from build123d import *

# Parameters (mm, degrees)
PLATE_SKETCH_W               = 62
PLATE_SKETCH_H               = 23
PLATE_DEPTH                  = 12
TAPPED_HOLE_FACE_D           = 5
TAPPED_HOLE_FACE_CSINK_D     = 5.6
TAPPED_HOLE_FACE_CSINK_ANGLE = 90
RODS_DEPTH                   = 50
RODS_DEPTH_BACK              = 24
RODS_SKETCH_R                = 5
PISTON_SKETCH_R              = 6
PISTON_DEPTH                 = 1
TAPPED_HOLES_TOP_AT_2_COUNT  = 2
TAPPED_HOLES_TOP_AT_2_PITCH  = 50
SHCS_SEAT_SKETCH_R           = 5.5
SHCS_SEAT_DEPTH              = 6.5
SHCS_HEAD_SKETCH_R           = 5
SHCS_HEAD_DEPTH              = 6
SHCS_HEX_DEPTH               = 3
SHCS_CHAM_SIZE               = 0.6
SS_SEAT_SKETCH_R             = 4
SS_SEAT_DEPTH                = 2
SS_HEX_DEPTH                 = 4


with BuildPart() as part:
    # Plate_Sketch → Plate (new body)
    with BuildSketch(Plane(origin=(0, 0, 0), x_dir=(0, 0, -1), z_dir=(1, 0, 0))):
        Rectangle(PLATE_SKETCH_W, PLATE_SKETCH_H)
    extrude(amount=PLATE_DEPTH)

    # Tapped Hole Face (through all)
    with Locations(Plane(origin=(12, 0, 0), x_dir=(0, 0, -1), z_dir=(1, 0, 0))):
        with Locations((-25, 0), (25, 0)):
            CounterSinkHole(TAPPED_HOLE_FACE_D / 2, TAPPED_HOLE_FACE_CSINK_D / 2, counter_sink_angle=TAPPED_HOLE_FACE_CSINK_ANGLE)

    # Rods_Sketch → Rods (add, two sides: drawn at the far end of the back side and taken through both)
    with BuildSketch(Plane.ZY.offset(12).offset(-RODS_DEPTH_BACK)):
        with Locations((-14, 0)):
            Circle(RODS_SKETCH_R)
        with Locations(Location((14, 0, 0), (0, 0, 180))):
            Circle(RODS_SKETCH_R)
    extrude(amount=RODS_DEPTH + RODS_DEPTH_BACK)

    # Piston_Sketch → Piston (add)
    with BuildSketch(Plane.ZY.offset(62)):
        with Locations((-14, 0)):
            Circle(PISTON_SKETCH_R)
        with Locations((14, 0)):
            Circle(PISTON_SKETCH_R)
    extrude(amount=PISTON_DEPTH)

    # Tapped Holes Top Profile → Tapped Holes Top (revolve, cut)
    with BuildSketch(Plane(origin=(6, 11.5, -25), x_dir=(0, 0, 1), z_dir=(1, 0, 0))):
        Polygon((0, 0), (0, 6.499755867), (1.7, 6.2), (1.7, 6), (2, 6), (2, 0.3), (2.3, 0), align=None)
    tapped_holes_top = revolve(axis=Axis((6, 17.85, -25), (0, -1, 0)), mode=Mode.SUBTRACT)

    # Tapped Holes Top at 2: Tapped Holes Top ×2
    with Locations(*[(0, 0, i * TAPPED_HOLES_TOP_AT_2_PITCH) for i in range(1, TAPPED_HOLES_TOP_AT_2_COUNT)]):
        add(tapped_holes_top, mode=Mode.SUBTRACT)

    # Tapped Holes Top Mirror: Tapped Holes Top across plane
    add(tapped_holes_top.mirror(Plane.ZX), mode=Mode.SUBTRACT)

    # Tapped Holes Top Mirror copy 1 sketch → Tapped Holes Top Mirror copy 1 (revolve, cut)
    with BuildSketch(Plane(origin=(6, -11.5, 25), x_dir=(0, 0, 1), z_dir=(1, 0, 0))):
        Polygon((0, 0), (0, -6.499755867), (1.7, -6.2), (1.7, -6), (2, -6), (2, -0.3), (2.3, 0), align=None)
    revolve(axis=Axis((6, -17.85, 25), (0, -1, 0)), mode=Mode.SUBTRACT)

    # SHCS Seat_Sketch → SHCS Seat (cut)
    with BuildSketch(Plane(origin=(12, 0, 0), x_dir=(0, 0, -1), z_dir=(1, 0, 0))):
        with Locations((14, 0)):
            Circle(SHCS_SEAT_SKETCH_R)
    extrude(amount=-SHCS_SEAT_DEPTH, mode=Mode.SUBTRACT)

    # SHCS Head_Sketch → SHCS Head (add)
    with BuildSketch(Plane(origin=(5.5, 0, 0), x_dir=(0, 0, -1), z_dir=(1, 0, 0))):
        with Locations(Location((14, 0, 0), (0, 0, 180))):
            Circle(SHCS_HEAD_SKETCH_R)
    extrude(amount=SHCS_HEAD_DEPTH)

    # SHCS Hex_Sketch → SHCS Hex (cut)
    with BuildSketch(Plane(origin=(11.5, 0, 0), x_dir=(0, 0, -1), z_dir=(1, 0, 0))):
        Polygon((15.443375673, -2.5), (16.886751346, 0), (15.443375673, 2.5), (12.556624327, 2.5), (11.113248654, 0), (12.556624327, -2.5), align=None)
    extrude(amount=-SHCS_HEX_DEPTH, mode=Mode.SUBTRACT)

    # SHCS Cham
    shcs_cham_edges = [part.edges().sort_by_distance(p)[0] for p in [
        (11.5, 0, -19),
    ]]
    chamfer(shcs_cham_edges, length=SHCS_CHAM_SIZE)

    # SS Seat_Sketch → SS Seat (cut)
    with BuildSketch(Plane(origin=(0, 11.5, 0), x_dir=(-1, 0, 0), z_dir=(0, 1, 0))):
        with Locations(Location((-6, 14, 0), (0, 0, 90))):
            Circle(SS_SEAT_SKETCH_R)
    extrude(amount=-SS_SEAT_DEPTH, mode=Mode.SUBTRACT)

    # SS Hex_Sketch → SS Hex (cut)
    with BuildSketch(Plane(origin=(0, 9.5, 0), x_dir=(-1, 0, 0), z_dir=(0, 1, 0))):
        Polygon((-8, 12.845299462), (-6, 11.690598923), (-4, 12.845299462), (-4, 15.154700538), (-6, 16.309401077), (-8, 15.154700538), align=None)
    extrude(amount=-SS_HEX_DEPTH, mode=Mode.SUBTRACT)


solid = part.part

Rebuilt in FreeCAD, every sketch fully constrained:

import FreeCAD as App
import Part
import Sketcher

V = App.Vector
Q = App.Units.Quantity


def edges_at(feature, points):
    """Names of the edges that pass closest to the given points."""
    edges = feature.Shape.Edges
    near = lambda p: min(range(len(edges)), key=lambda i: edges[i].distToShape(Part.Vertex(*p))[0])
    return sorted({f"Edge{near(p) + 1}" for p in points})


def add_polygon(sketch, points):
    """Adds a closed chain of lines whose ends are joined by coincident constraints."""
    first, n = sketch.GeometryCount, len(points)
    for a, b in zip(points, points[1:] + points[:1]):
        sketch.addGeometry(Part.LineSegment(App.Vector(*a, 0), App.Vector(*b, 0)), False)
    for i in range(n):
        sketch.addConstraint(Sketcher.Constraint("Coincident", first + i, 2, first + (i + 1) % n, 1))

doc = App.newDocument("Part")
body = doc.addObject("PartDesign::Body", "Body")

# Sketch on YZ plane
sketch1 = doc.addObject("Sketcher::SketchObject", "Sketch")
body.addObject(sketch1)
sketch1.AttachmentSupport = (doc.YZ_Plane, [""])
sketch1.MapMode = "FlatFace"
add_polygon(sketch1, [(11.5, 31), (-11.5, 31), (-11.5, -31), (11.5, -31)])  # lines 0-3
sketch1.addConstraint([
    Sketcher.Constraint("Horizontal", 0),
    Sketcher.Constraint("Vertical", 1),
    Sketcher.Constraint("Horizontal", 2),
    Sketcher.Constraint("Vertical", 3),
    Sketcher.Constraint("Symmetric", 0, 2, 2, 2, -1, 1),
    Sketcher.Constraint("DistanceX", 0, 2, 0, 1, Q("23 mm")),
    Sketcher.Constraint("DistanceY", 1, 2, 1, 1, Q("62 mm")),
])
pad1 = doc.addObject("PartDesign::Pad", "Pad")
body.addObject(pad1)
pad1.Profile = sketch1
pad1.Length = 12

# Sketch on YZ plane
sketch2 = doc.addObject("Sketcher::SketchObject", "Sketch001")
body.addObject(sketch2)
sketch2.AttachmentSupport = (doc.YZ_Plane, [""])
sketch2.MapMode = "FlatFace"
sketch2.AttachmentOffset = App.Placement(V(0, 0, 12), App.Rotation())
sketch2.addGeometry([
    Part.Circle(V(0, 25, 0), V(0, 0, 1), 2.5),
    Part.Circle(V(0, -25, 0), V(0, 0, 1), 2.5),
], False)
sketch2.addConstraint([
    Sketcher.Constraint("Equal", 0, 1),
    Sketcher.Constraint("Symmetric", 0, 3, 1, 3, -1, 1),
    Sketcher.Constraint("PointOnObject", 0, 3, -2),
    Sketcher.Constraint("Diameter", 0, Q("5 mm")),
    Sketcher.Constraint("DistanceY", -1, 1, 0, 3, Q("25 mm")),
])
doc.recompute()
hole = doc.addObject("PartDesign::Hole", "Hole")
body.addObject(hole)
hole.Profile = sketch2
hole.ThreadType = "None"
hole.Diameter = 5
hole.DepthType = "ThroughAll"
hole.HoleCutType = "Countersink"
hole.HoleCutDiameter = 5.6
hole.HoleCutCountersinkAngle = 90

# Sketch on YZ plane
sketch3 = doc.addObject("Sketcher::SketchObject", "Sketch002")
body.addObject(sketch3)
sketch3.AttachmentSupport = (doc.YZ_Plane, [""])
sketch3.MapMode = "FlatFace"
sketch3.AttachmentOffset = App.Placement(V(0, 0, -12), App.Rotation())
sketch3.addGeometry([
    Part.Circle(V(0, -14, 0), V(0, 0, 1), 5),
    Part.Circle(V(0, 14, 0), V(0, 0, 1), 5),
], False)
sketch3.addConstraint([
    Sketcher.Constraint("Equal", 0, 1),
    Sketcher.Constraint("Symmetric", 0, 3, 1, 3, -1, 1),
    Sketcher.Constraint("PointOnObject", 0, 3, -2),
    Sketcher.Constraint("Diameter", 0, Q("10 mm")),
    Sketcher.Constraint("DistanceY", 0, 3, -1, 1, Q("14 mm")),
])
pad2 = doc.addObject("PartDesign::Pad", "Pad001")
body.addObject(pad2)
pad2.Profile = sketch3
pad2.Type = "TwoLengths"
pad2.Length = 50
pad2.Length2 = 24
pad2.Reversed = True

# Sketch on YZ plane
sketch4 = doc.addObject("Sketcher::SketchObject", "Sketch003")
body.addObject(sketch4)
sketch4.AttachmentSupport = (doc.YZ_Plane, [""])
sketch4.MapMode = "FlatFace"
sketch4.AttachmentOffset = App.Placement(V(0, 0, -62), App.Rotation())
sketch4.addGeometry([
    Part.Circle(V(0, -14, 0), V(0, 0, 1), 6),
    Part.Circle(V(0, 14, 0), V(0, 0, 1), 6),
], False)
sketch4.addConstraint([
    Sketcher.Constraint("Equal", 0, 1),
    Sketcher.Constraint("Symmetric", 0, 3, 1, 3, -1, 1),
    Sketcher.Constraint("PointOnObject", 0, 3, -2),
    Sketcher.Constraint("Diameter", 0, Q("12 mm")),
    Sketcher.Constraint("DistanceY", 0, 3, -1, 1, Q("14 mm")),
])
pad3 = doc.addObject("PartDesign::Pad", "Pad002")
body.addObject(pad3)
pad3.Profile = sketch4
pad3.Length = 1
pad3.Reversed = True

# Sketch on YZ plane
sketch5 = doc.addObject("Sketcher::SketchObject", "Sketch004")
body.addObject(sketch5)
sketch5.AttachmentSupport = (doc.YZ_Plane, [""])
sketch5.MapMode = "FlatFace"
sketch5.AttachmentOffset = App.Placement(V(0, 0, 6), App.Rotation())
add_polygon(sketch5, [(5.000244, -25), (11.5, -25), (11.5, -22.7), (11.2, -23), (5.5, -23), (5.5, -23.3), (5.3, -23.3)])  # lines 0-6
sketch5.addGeometry(Part.LineSegment(V(11.5, -25, 0), V(5.000244, -25, 0)), True)  # axis
sketch5.addConstraint([
    Sketcher.Constraint("Horizontal", 0),
    Sketcher.Constraint("Vertical", 1),
    Sketcher.Constraint("Horizontal", 3),
    Sketcher.Constraint("Vertical", 4),
    Sketcher.Constraint("Horizontal", 5),
    Sketcher.Constraint("Horizontal", 7),
    Sketcher.Constraint("Coincident", 7, 1, 0, 2),
    Sketcher.Constraint("Equal", 0, 7),
    Sketcher.Constraint("Angle", 2, Q("-135 deg")),
    Sketcher.Constraint("Angle", 6, Q("-100 deg")),
    Sketcher.Constraint("DistanceX", 3, 2, 3, 1, Q("5.7 mm")),
    Sketcher.Constraint("DistanceX", 5, 2, 5, 1, Q("0.2 mm")),
    Sketcher.Constraint("DistanceY", 1, 1, 1, 2, Q("2.3 mm")),
    Sketcher.Constraint("DistanceY", 4, 2, 4, 1, Q("0.3 mm")),
    Sketcher.Constraint("DistanceY", 0, 2, -1, 1, Q("25 mm")),
    Sketcher.Constraint("DistanceY", 2, 2, -1, 1, Q("23 mm")),
    Sketcher.Constraint("DistanceX", -1, 1, 0, 2, Q("11.5 mm")),
])
groove = doc.addObject("PartDesign::Groove", "Groove")
body.addObject(groove)
groove.Profile = sketch5
groove.ReferenceAxis = (sketch5, ["Axis0"])
groove.Angle = 360
doc.recompute()

linearpattern = doc.addObject("PartDesign::LinearPattern", "LinearPattern")
body.addObject(linearpattern)
linearpattern.Originals = [groove]
linearpattern.Direction = (doc.Z_Axis, [""])
linearpattern.Mode = "offset"
linearpattern.Offset = 50
linearpattern.Occurrences = 2
body.Tip = linearpattern
doc.recompute()

mirrored = doc.addObject("PartDesign::Mirrored", "Mirrored")
body.addObject(mirrored)
mirrored.Originals = [groove]
mirrored.MirrorPlane = (doc.XZ_Plane, [""])
body.Tip = mirrored

# Sketch on YZ plane
sketch6 = doc.addObject("Sketcher::SketchObject", "Sketch005")
body.addObject(sketch6)
sketch6.AttachmentSupport = (doc.YZ_Plane, [""])
sketch6.MapMode = "FlatFace"
sketch6.AttachmentOffset = App.Placement(V(0, 0, 6), App.Rotation())
add_polygon(sketch6, [(-11.5, 25), (-5.000244, 25), (-5.3, 26.7), (-5.5, 26.7), (-5.5, 27), (-11.2, 27), (-11.5, 27.3)])  # lines 0-6
sketch6.addGeometry(Part.LineSegment(V(-5.000244, 25, 0), V(-11.5, 25, 0)), True)  # axis
sketch6.addConstraint([
    Sketcher.Constraint("Horizontal", 0),
    Sketcher.Constraint("Horizontal", 2),
    Sketcher.Constraint("Vertical", 3),
    Sketcher.Constraint("Horizontal", 4),
    Sketcher.Constraint("Vertical", 6),
    Sketcher.Constraint("Horizontal", 7),
    Sketcher.Constraint("Coincident", 7, 1, 0, 2),
    Sketcher.Constraint("Vertical", 5, 2, 7, 2),
    Sketcher.Constraint("Angle", 1, Q("100 deg")),
    Sketcher.Constraint("Angle", 5, Q("135 deg")),
    Sketcher.Constraint("DistanceX", 2, 2, 2, 1, Q("0.2 mm")),
    Sketcher.Constraint("DistanceX", 4, 2, 4, 1, Q("5.7 mm")),
    Sketcher.Constraint("DistanceY", 3, 1, 3, 2, Q("0.3 mm")),
    Sketcher.Constraint("DistanceY", 6, 2, 6, 1, Q("2.3 mm")),
    Sketcher.Constraint("DistanceY", -1, 1, 0, 2, Q("25 mm")),
    Sketcher.Constraint("DistanceY", -1, 1, 3, 2, Q("27 mm")),
    Sketcher.Constraint("DistanceX", 1, 2, -1, 1, Q("5.3 mm")),
])
groove2 = doc.addObject("PartDesign::Groove", "Groove001")
body.addObject(groove2)
groove2.Profile = sketch6
groove2.ReferenceAxis = (sketch6, ["Axis0"])
groove2.Angle = 360

# Sketch on YZ plane
sketch7 = doc.addObject("Sketcher::SketchObject", "Sketch006")
body.addObject(sketch7)
sketch7.AttachmentSupport = (doc.YZ_Plane, [""])
sketch7.MapMode = "FlatFace"
sketch7.AttachmentOffset = App.Placement(V(0, 0, 12), App.Rotation())
sketch7.addGeometry(Part.Circle(V(0, -14, 0), V(0, 0, 1), 5.5), False)
sketch7.addConstraint([
    Sketcher.Constraint("PointOnObject", 0, 3, -2),
    Sketcher.Constraint("Diameter", 0, Q("11 mm")),
    Sketcher.Constraint("DistanceY", 0, 3, -1, 1, Q("14 mm")),
])
pocket1 = doc.addObject("PartDesign::Pocket", "Pocket")
body.addObject(pocket1)
pocket1.Profile = sketch7
pocket1.Length = 6.5

# Sketch on YZ plane
sketch8 = doc.addObject("Sketcher::SketchObject", "Sketch007")
body.addObject(sketch8)
sketch8.AttachmentSupport = (doc.YZ_Plane, [""])
sketch8.MapMode = "FlatFace"
sketch8.AttachmentOffset = App.Placement(V(0, 0, 5.5), App.Rotation())
sketch8.addGeometry(Part.Circle(V(0, -14, 0), V(0, 0, 1), 5), False)
sketch8.addConstraint([
    Sketcher.Constraint("PointOnObject", 0, 3, -2),
    Sketcher.Constraint("Diameter", 0, Q("10 mm")),
    Sketcher.Constraint("DistanceY", 0, 3, -1, 1, Q("14 mm")),
])
pad4 = doc.addObject("PartDesign::Pad", "Pad003")
body.addObject(pad4)
pad4.Profile = sketch8
pad4.Length = 6

# Sketch on YZ plane
sketch9 = doc.addObject("Sketcher::SketchObject", "Sketch008")
body.addObject(sketch9)
sketch9.AttachmentSupport = (doc.YZ_Plane, [""])
sketch9.MapMode = "FlatFace"
sketch9.AttachmentOffset = App.Placement(V(0, 0, 11.5), App.Rotation())
add_polygon(sketch9, [(-2.5, -15.443376), (0, -16.886751), (2.5, -15.443376), (2.5, -12.556624), (0, -11.113249), (-2.5, -12.556624)])  # lines 0-5
sketch9.addConstraint([
    Sketcher.Constraint("Vertical", 2),
    Sketcher.Constraint("Vertical", 5),
    Sketcher.Constraint("Symmetric", 2, 2, 4, 2, -2),
    Sketcher.Constraint("PointOnObject", 0, 2, -2),
    Sketcher.Constraint("PointOnObject", 3, 2, -2),
    Sketcher.Constraint("Parallel", 0, 3),
    Sketcher.Constraint("Parallel", 1, 4),
    Sketcher.Constraint("Angle", 0, Q("-30 deg")),
    Sketcher.Constraint("DistanceX", 4, 2, 2, 2, Q("5 mm")),
    Sketcher.Constraint("DistanceY", 2, 1, 2, 2, Q("2.886751 mm")),
    Sketcher.Constraint("DistanceY", 0, 2, -1, 1, Q("16.886751 mm")),
])
pocket2 = doc.addObject("PartDesign::Pocket", "Pocket001")
body.addObject(pocket2)
pocket2.Profile = sketch9
pocket2.Length = 3
doc.recompute()

chamfer = doc.addObject("PartDesign::Chamfer", "Chamfer")
body.addObject(chamfer)
chamfer.Base = (pocket2, edges_at(pocket2, [(11.5, 0, -19)]))
chamfer.Size = 0.6

# Sketch on XZ plane
sketch10 = doc.addObject("Sketcher::SketchObject", "Sketch009")
body.addObject(sketch10)
sketch10.AttachmentSupport = (doc.XZ_Plane, [""])
sketch10.MapMode = "FlatFace"
sketch10.AttachmentOffset = App.Placement(V(0, 0, -11.5), App.Rotation())
sketch10.addGeometry(Part.Circle(V(6, 14, 0), V(0, 0, 1), 4), False)
sketch10.addConstraint([
    Sketcher.Constraint("Diameter", 0, Q("8 mm")),
    Sketcher.Constraint("DistanceX", -1, 1, 0, 3, Q("6 mm")),
    Sketcher.Constraint("DistanceY", -1, 1, 0, 3, Q("14 mm")),
])
pocket3 = doc.addObject("PartDesign::Pocket", "Pocket002")
body.addObject(pocket3)
pocket3.Profile = sketch10
pocket3.Length = 2
pocket3.Reversed = True

# Sketch on XZ plane
sketch11 = doc.addObject("Sketcher::SketchObject", "Sketch010")
body.addObject(sketch11)
sketch11.AttachmentSupport = (doc.XZ_Plane, [""])
sketch11.MapMode = "FlatFace"
sketch11.AttachmentOffset = App.Placement(V(0, 0, -9.5), App.Rotation())
add_polygon(sketch11, [(8, 12.845299), (6, 11.690599), (4, 12.845299), (4, 15.154701), (6, 16.309401), (8, 15.154701)])  # lines 0-5
sketch11.addConstraint([
    Sketcher.Constraint("Vertical", 2),
    Sketcher.Constraint("Vertical", 5),
    Sketcher.Constraint("Parallel", 0, 3),
    Sketcher.Constraint("Parallel", 1, 4),
    Sketcher.Constraint("Horizontal", 2, 2, 4, 2),
    Sketcher.Constraint("Horizontal", 1, 2, 5, 2),
    Sketcher.Constraint("Vertical", 0, 2, 3, 2),
    Sketcher.Constraint("Angle", 0, Q("-150 deg")),
    Sketcher.Constraint("DistanceX", -1, 1, 0, 2, Q("6 mm")),
    Sketcher.Constraint("DistanceX", -1, 1, 1, 2, Q("4 mm")),
    Sketcher.Constraint("DistanceY", 2, 1, 2, 2, Q("2.309401 mm")),
    Sketcher.Constraint("DistanceY", -1, 1, 0, 2, Q("11.690599 mm")),
])
pocket4 = doc.addObject("PartDesign::Pocket", "Pocket003")
body.addObject(pocket4)
pocket4.Profile = sketch11
pocket4.Length = 4
pocket4.Reversed = True

doc.recompute()
